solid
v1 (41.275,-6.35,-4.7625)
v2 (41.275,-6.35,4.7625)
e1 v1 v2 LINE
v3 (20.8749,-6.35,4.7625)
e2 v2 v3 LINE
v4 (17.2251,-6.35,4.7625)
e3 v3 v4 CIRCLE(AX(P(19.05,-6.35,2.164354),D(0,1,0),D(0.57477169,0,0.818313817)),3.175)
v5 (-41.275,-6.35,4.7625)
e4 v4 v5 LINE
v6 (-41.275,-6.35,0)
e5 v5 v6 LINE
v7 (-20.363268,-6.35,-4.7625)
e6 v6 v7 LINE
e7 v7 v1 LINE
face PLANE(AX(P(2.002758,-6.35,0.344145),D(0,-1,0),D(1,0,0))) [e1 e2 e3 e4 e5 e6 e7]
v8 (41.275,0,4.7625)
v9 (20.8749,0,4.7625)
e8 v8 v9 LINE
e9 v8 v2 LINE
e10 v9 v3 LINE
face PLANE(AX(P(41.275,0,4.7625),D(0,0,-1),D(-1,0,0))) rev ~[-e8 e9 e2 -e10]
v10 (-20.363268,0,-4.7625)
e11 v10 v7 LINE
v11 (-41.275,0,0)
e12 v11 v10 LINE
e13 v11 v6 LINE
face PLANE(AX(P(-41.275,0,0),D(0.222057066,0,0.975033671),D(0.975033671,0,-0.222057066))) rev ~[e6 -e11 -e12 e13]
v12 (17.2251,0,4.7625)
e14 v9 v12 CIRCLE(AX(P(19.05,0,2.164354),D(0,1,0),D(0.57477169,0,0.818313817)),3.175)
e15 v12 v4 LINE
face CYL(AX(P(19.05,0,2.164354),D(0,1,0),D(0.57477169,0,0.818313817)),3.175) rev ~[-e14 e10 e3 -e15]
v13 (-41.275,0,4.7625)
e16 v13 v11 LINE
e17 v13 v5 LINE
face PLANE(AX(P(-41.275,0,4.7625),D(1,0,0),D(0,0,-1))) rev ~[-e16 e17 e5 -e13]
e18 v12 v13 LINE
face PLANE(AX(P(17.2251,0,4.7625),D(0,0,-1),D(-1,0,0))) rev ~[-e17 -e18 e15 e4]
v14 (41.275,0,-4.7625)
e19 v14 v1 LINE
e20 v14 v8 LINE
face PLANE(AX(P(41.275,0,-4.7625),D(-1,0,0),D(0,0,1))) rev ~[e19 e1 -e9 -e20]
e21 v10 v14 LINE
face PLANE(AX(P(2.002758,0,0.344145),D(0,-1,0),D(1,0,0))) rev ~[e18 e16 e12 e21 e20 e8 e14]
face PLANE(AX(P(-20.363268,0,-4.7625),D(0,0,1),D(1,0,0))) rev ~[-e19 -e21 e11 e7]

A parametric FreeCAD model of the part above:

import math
import FreeCAD as App
import Part
import Sketcher
Q = App.Units.Quantity

doc = App.newDocument("Part")
body = doc.addObject("PartDesign::Body", "Body")

# Sketch on XZ plane
sketch1 = doc.addObject("Sketcher::SketchObject", "Sketch")
body.addObject(sketch1)
sketch1.AttachmentSupport = (doc.XZ_Plane, [""])
sketch1.MapMode = "FlatFace"
sketch1.addGeometry([
    Part.LineSegment(App.Vector(17.2251, 4.7625, 0), App.Vector(-41.275, 4.7625, 0)),  # 0
    Part.LineSegment(App.Vector(-41.275, 4.7625, 0), App.Vector(-41.275, 0, 0)),  # 1
    Part.LineSegment(App.Vector(-41.275, 0, 0), App.Vector(-20.363268, -4.7625, 0)),  # 2
    Part.LineSegment(App.Vector(-20.363268, -4.7625, 0), App.Vector(41.275, -4.7625, 0)),  # 3
    Part.LineSegment(App.Vector(41.275, -4.7625, 0), App.Vector(41.275, 4.7625, 0)),  # 4
    Part.LineSegment(App.Vector(41.275, 4.7625, 0), App.Vector(20.8749, 4.7625, 0)),  # 5
    Part.ArcOfCircle(Part.Circle(App.Vector(19.05, 2.164354, 0), App.Vector(0, 0, 1), 3.175), math.radians(125.083645), math.radians(414.916355)),  # 6
], False)
sketch1.addConstraint([
    Sketcher.Constraint("Coincident", 0, 2, 1, 1),
    Sketcher.Constraint("Coincident", 1, 2, 2, 1),
    Sketcher.Constraint("Coincident", 2, 2, 3, 1),
    Sketcher.Constraint("Coincident", 3, 2, 4, 1),
    Sketcher.Constraint("Coincident", 4, 2, 5, 1),
    Sketcher.Constraint("Coincident", 5, 2, 6, 2),
    Sketcher.Constraint("Coincident", 6, 1, 0, 1),
    Sketcher.Constraint("Horizontal", 0),
    Sketcher.Constraint("Vertical", 1),
    Sketcher.Constraint("Horizontal", 3),
    Sketcher.Constraint("Vertical", 4),
    Sketcher.Constraint("Horizontal", 5),
    Sketcher.Constraint("Symmetric", 0, 2, 3, 2, -1, 1),
    Sketcher.Constraint("PointOnObject", 1, 2, -1),
    Sketcher.Constraint("Horizontal", 0, 2, 4, 2),
    Sketcher.Constraint("Radius", 6, Q("0.125 in")),
    Sketcher.Constraint("DistanceY", 1, 2, 1, 1, Q("0.1875 in")),
    Sketcher.Constraint("DistanceX", -1, 1, 6, 3, Q("0.75 in")),
    Sketcher.Constraint("DistanceX", 1, 2, 3, 2, Q("3.25 in")),
    Sketcher.Constraint("DistanceX", 0, 2, 0, 1, Q("58.5001 mm")),
    Sketcher.Constraint("Distance", 2, Q("21.44719 mm")),
])
pad1 = doc.addObject("PartDesign::Pad", "Pad")
body.addObject(pad1)
pad1.Profile = sketch1
pad1.Length = Q("0.25 in")

doc.recompute()
